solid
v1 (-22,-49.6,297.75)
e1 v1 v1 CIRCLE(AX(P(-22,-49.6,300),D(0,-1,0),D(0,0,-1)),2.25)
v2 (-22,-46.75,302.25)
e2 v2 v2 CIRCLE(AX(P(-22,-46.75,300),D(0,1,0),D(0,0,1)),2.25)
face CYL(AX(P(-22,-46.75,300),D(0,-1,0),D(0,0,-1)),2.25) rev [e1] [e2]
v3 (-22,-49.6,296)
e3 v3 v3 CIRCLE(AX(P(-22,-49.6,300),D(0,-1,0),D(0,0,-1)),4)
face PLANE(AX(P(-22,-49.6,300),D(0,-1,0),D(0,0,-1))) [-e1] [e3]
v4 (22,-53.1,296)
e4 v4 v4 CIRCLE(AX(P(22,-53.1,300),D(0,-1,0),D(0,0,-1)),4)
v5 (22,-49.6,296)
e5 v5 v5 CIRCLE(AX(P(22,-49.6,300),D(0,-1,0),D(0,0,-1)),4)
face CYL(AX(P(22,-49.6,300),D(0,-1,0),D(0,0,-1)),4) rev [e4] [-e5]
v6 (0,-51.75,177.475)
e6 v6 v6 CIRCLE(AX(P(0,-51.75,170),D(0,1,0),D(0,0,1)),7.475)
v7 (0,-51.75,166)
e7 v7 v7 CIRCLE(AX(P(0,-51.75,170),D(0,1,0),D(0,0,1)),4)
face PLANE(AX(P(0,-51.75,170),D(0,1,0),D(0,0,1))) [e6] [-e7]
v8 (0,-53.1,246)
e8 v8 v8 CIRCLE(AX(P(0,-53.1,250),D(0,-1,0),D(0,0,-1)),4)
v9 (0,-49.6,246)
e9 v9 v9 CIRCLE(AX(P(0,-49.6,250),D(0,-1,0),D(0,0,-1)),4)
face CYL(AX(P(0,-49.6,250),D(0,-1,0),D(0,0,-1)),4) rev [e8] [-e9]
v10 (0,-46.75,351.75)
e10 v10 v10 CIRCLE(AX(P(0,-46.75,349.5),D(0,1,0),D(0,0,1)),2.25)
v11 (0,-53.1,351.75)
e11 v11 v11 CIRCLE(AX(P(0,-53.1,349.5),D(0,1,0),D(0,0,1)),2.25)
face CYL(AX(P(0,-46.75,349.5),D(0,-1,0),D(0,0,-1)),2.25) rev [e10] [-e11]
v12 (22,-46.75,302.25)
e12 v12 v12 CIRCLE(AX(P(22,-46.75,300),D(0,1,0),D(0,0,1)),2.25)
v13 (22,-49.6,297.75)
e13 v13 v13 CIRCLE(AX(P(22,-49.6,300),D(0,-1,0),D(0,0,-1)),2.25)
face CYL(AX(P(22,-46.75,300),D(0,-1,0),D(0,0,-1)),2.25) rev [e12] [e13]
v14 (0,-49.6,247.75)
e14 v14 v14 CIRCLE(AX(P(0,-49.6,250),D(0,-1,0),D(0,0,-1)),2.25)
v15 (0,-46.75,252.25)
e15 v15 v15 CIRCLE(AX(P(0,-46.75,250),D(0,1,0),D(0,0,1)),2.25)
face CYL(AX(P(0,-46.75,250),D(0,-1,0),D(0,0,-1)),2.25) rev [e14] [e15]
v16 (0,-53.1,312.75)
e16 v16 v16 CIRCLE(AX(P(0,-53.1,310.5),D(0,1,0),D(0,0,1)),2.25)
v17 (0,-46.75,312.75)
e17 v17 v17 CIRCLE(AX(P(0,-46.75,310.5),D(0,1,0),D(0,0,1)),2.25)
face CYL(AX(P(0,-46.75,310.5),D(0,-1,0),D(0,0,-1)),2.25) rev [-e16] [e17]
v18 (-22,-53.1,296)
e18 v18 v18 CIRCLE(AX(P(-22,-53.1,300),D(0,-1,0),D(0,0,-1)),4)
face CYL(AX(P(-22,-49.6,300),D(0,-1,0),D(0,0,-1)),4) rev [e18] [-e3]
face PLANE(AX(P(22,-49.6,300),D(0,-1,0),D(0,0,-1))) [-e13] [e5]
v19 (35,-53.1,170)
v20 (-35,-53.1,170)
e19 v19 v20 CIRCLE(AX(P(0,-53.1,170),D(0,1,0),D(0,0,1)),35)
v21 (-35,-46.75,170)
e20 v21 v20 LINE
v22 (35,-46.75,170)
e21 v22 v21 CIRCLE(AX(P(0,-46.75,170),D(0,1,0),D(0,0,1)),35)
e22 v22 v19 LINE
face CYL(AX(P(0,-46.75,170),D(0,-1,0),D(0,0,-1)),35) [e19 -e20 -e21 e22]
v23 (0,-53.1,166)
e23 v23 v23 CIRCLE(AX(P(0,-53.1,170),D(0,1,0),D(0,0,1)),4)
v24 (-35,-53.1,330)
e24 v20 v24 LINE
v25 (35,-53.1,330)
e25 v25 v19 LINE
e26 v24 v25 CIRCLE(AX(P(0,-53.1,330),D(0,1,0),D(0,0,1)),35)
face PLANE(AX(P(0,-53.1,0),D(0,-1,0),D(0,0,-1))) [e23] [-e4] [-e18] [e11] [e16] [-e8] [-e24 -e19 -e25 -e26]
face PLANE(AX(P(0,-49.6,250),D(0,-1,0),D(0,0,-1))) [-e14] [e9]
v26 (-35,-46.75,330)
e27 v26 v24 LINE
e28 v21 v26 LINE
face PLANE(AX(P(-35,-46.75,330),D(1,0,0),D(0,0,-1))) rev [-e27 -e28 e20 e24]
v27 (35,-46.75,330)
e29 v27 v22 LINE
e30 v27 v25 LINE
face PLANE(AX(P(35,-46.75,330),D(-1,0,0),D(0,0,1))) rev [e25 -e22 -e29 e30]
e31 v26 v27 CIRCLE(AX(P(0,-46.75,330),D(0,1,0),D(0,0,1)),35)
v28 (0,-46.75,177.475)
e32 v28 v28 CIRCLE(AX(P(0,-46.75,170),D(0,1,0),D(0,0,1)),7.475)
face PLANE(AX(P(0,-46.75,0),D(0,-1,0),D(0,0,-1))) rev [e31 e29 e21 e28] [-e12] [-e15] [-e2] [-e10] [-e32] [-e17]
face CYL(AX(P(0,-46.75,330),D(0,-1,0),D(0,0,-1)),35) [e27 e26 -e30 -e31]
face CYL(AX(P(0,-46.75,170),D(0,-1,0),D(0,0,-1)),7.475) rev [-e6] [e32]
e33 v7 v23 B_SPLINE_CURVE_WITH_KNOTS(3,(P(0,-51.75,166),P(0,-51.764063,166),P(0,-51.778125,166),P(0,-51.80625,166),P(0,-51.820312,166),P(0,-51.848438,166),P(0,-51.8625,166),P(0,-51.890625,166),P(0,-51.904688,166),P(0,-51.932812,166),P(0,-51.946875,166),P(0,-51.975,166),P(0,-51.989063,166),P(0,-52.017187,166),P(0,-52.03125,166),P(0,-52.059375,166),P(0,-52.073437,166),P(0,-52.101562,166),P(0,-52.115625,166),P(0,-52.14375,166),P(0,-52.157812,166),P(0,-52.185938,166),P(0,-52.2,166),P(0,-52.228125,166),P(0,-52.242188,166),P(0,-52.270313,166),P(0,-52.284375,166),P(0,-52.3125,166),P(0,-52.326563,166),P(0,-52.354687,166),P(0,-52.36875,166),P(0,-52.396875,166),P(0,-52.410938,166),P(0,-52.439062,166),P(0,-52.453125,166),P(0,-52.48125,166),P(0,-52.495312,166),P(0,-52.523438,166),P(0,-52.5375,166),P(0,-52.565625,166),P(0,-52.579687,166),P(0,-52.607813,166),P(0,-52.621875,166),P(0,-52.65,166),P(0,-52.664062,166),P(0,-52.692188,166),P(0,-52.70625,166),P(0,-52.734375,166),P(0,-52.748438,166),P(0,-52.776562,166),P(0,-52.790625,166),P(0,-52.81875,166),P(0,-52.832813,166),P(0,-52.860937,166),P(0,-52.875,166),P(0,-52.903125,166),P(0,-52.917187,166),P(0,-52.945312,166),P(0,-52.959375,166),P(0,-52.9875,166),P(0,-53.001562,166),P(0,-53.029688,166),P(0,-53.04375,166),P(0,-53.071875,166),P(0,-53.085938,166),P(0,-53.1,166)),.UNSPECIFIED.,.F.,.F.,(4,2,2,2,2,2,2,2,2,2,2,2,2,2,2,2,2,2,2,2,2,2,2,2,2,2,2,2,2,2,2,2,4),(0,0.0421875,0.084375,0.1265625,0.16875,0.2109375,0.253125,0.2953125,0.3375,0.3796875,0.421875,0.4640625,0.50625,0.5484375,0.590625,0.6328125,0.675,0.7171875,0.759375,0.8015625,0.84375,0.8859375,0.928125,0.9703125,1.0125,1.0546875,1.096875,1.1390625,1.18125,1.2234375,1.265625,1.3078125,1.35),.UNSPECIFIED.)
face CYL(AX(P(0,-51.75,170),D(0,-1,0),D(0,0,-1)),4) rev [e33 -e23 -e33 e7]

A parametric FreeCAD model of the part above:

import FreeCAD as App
import Part
import Sketcher
Q = App.Units.Quantity

doc = App.newDocument("Part")
body = doc.addObject("PartDesign::Body", "Body")

sketch1 = body.newObject("Sketcher::SketchObject", "Sketch")
sketch1.AttachmentSupport = (doc.getObject("XZ_Plane"), [""])
sketch1.MapMode = "FlatFace"
sketch1.AttachmentOffset = App.Placement(App.Vector(0, 0, 53.1), App.Rotation())
sketch1.addGeometry([
    Part.LineSegment(App.Vector(-35, 170, 0), App.Vector(-35, 330, 0)),
    Part.LineSegment(App.Vector(-35, 330, 0), App.Vector(35, 330, 0)),
    Part.LineSegment(App.Vector(35, 330, 0), App.Vector(35, 170, 0)),
    Part.LineSegment(App.Vector(35, 170, 0), App.Vector(-35, 170, 0)),
], False)
sketch1.addConstraint([
    Sketcher.Constraint("Coincident", 0, 2, 1, 1),
    Sketcher.Constraint("Coincident", 1, 2, 2, 1),
    Sketcher.Constraint("Coincident", 2, 2, 3, 1),
    Sketcher.Constraint("Coincident", 3, 2, 0, 1),
    Sketcher.Constraint("Vertical", 0),
    Sketcher.Constraint("Horizontal", 1),
    Sketcher.Constraint("Vertical", 2),
    Sketcher.Constraint("Horizontal", 3),
    Sketcher.Constraint("DistanceX", 1, 1, 1, 2, Q("70 mm")),
    Sketcher.Constraint("DistanceY", 0, 1, 0, 2, Q("160 mm")),
    Sketcher.Constraint("DistanceX", 0, 2, -1, 1, Q("35 mm")),
    Sketcher.Constraint("DistanceY", -1, 1, 0, 2, Q("330 mm")),
])
pad1 = body.newObject("PartDesign::Pad", "Pad")
pad1.Profile = sketch1
pad1.Length = 6.35
pad1.Reversed = True

sketch2 = body.newObject("Sketcher::SketchObject", "Sketch001")
sketch2.AttachmentSupport = (doc.getObject("XZ_Plane"), [""])
sketch2.MapMode = "FlatFace"
sketch2.AttachmentOffset = App.Placement(App.Vector(0, 0, 53.1), App.Rotation())
sketch2.addGeometry([
    Part.Circle(App.Vector(0, 170, 0), App.Vector(0, 0, 1), 35),
    Part.Circle(App.Vector(0, 330, 0), App.Vector(0, 0, 1), 35),
], False)
sketch2.addConstraint([
    Sketcher.Constraint("Equal", 0, 1),
    Sketcher.Constraint("PointOnObject", 0, 3, -2),
    Sketcher.Constraint("PointOnObject", 1, 3, -2),
    Sketcher.Constraint("Diameter", 0, Q("70 mm")),
    Sketcher.Constraint("DistanceY", -1, 1, 0, 3, Q("170 mm")),
    Sketcher.Constraint("DistanceY", -1, 1, 1, 3, Q("330 mm")),
])
pad2 = body.newObject("PartDesign::Pad", "Pad001")
pad2.Profile = sketch2
pad2.Length = 6.35
pad2.Reversed = True

sketch3 = body.newObject("Sketcher::SketchObject", "Sketch002")
sketch3.AttachmentSupport = (doc.getObject("XZ_Plane"), [""])
sketch3.MapMode = "FlatFace"
sketch3.AttachmentOffset = App.Placement(App.Vector(0, 0, 53.1), App.Rotation())
sketch3.addGeometry([
    Part.Circle(App.Vector(0, 250, 0), App.Vector(0, 0, 1), 2.2),
    Part.Circle(App.Vector(-22, 300, 0), App.Vector(0, 0, 1), 2.2),
    Part.Circle(App.Vector(22, 300, 0), App.Vector(0, 0, 1), 2.2),
], False)
sketch3.addConstraint([
    Sketcher.Constraint("Equal", 0, 1),
    Sketcher.Constraint("Equal", 1, 2),
    Sketcher.Constraint("Symmetric", 1, 3, 2, 3, -2),
    Sketcher.Constraint("PointOnObject", 0, 3, -2),
    Sketcher.Constraint("Diameter", 0, Q("4.5 mm")),
    Sketcher.Constraint("DistanceY", -1, 1, 0, 3, Q("250 mm")),
    Sketcher.Constraint("DistanceX", 1, 3, -1, 1, Q("22 mm")),
    Sketcher.Constraint("DistanceY", -1, 1, 1, 3, Q("300 mm")),
])
pocket1 = body.newObject("PartDesign::Pocket", "Pocket")
pocket1.Profile = sketch3
pocket1.Length = 6.35

sketch4 = body.newObject("Sketcher::SketchObject", "Sketch003")
sketch4.AttachmentSupport = (doc.getObject("XZ_Plane"), [""])
sketch4.MapMode = "FlatFace"
sketch4.AttachmentOffset = App.Placement(App.Vector(0, 0, 51.75), App.Rotation())
sketch4.addGeometry(Part.Circle(App.Vector(0, 170, 0), App.Vector(0, 0, 1), 7), False)
sketch4.addConstraint([
    Sketcher.Constraint("PointOnObject", 0, 3, -2),
    Sketcher.Constraint("Diameter", 0, Q("14.95 mm")),
    Sketcher.Constraint("DistanceY", -1, 1, 0, 3, Q("170 mm")),
])
pocket2 = body.newObject("PartDesign::Pocket", "Pocket001")
pocket2.Profile = sketch4
pocket2.Length = 5

sketch5 = body.newObject("Sketcher::SketchObject", "Sketch004")
sketch5.AttachmentSupport = (doc.getObject("XZ_Plane"), [""])
sketch5.MapMode = "FlatFace"
sketch5.AttachmentOffset = App.Placement(App.Vector(0, 0, 53.1), App.Rotation())
sketch5.addGeometry(Part.Circle(App.Vector(0, 170, 0), App.Vector(0, 0, 1), 4), False)
sketch5.addConstraint([
    Sketcher.Constraint("PointOnObject", 0, 3, -2),
    Sketcher.Constraint("Diameter", 0, Q("8 mm")),
    Sketcher.Constraint("DistanceY", -1, 1, 0, 3, Q("170 mm")),
])
pocket3 = body.newObject("PartDesign::Pocket", "Pocket002")
pocket3.Profile = sketch5
pocket3.Length = 1.35

sketch6 = body.newObject("Sketcher::SketchObject", "Sketch005")
sketch6.AttachmentSupport = (doc.getObject("XZ_Plane"), [""])
sketch6.MapMode = "FlatFace"
sketch6.AttachmentOffset = App.Placement(App.Vector(0, 0, 53.1), App.Rotation())
sketch6.addGeometry([
    Part.Circle(App.Vector(0, 310.5, 0), App.Vector(0, 0, 1), 2.2),
    Part.Circle(App.Vector(0, 349.5, 0), App.Vector(0, 0, 1), 2.2),
], False)
sketch6.addConstraint([
    Sketcher.Constraint("Equal", 0, 1),
    Sketcher.Constraint("PointOnObject", 0, 3, -2),
    Sketcher.Constraint("PointOnObject", 1, 3, -2),
    Sketcher.Constraint("Diameter", 0, Q("4.5 mm")),
    Sketcher.Constraint("DistanceY", 0, 3, 1, 3, Q("39 mm")),
    Sketcher.Constraint("DistanceY", -1, 1, 0, 3, Q("310.5 mm")),
])
pocket4 = body.newObject("PartDesign::Pocket", "Pocket003")
pocket4.Profile = sketch6
pocket4.Length = 6.35

sketch7 = body.newObject("Sketcher::SketchObject", "Sketch006")
sketch7.AttachmentSupport = (doc.getObject("XZ_Plane"), [""])
sketch7.MapMode = "FlatFace"
sketch7.AttachmentOffset = App.Placement(App.Vector(0, 0, 53.1), App.Rotation())
sketch7.addGeometry([
    Part.Circle(App.Vector(0, 250, 0), App.Vector(0, 0, 1), 4),
    Part.Circle(App.Vector(22, 300, 0), App.Vector(0, 0, 1), 4),
    Part.Circle(App.Vector(-22, 300, 0), App.Vector(0, 0, 1), 4),
], False)
sketch7.addConstraint([
    Sketcher.Constraint("Equal", 0, 1),
    Sketcher.Constraint("Equal", 1, 2),
    Sketcher.Constraint("Symmetric", 1, 3, 2, 3, -2),
    Sketcher.Constraint("PointOnObject", 0, 3, -2),
    Sketcher.Constraint("Diameter", 0, Q("8 mm")),
    Sketcher.Constraint("DistanceY", -1, 1, 0, 3, Q("250 mm")),
    Sketcher.Constraint("DistanceX", -1, 1, 1, 3, Q("22 mm")),
    Sketcher.Constraint("DistanceY", -1, 1, 1, 3, Q("300 mm")),
])
pocket5 = body.newObject("PartDesign::Pocket", "Pocket004")
pocket5.Profile = sketch7
pocket5.Length = 3.5

doc.recompute()
